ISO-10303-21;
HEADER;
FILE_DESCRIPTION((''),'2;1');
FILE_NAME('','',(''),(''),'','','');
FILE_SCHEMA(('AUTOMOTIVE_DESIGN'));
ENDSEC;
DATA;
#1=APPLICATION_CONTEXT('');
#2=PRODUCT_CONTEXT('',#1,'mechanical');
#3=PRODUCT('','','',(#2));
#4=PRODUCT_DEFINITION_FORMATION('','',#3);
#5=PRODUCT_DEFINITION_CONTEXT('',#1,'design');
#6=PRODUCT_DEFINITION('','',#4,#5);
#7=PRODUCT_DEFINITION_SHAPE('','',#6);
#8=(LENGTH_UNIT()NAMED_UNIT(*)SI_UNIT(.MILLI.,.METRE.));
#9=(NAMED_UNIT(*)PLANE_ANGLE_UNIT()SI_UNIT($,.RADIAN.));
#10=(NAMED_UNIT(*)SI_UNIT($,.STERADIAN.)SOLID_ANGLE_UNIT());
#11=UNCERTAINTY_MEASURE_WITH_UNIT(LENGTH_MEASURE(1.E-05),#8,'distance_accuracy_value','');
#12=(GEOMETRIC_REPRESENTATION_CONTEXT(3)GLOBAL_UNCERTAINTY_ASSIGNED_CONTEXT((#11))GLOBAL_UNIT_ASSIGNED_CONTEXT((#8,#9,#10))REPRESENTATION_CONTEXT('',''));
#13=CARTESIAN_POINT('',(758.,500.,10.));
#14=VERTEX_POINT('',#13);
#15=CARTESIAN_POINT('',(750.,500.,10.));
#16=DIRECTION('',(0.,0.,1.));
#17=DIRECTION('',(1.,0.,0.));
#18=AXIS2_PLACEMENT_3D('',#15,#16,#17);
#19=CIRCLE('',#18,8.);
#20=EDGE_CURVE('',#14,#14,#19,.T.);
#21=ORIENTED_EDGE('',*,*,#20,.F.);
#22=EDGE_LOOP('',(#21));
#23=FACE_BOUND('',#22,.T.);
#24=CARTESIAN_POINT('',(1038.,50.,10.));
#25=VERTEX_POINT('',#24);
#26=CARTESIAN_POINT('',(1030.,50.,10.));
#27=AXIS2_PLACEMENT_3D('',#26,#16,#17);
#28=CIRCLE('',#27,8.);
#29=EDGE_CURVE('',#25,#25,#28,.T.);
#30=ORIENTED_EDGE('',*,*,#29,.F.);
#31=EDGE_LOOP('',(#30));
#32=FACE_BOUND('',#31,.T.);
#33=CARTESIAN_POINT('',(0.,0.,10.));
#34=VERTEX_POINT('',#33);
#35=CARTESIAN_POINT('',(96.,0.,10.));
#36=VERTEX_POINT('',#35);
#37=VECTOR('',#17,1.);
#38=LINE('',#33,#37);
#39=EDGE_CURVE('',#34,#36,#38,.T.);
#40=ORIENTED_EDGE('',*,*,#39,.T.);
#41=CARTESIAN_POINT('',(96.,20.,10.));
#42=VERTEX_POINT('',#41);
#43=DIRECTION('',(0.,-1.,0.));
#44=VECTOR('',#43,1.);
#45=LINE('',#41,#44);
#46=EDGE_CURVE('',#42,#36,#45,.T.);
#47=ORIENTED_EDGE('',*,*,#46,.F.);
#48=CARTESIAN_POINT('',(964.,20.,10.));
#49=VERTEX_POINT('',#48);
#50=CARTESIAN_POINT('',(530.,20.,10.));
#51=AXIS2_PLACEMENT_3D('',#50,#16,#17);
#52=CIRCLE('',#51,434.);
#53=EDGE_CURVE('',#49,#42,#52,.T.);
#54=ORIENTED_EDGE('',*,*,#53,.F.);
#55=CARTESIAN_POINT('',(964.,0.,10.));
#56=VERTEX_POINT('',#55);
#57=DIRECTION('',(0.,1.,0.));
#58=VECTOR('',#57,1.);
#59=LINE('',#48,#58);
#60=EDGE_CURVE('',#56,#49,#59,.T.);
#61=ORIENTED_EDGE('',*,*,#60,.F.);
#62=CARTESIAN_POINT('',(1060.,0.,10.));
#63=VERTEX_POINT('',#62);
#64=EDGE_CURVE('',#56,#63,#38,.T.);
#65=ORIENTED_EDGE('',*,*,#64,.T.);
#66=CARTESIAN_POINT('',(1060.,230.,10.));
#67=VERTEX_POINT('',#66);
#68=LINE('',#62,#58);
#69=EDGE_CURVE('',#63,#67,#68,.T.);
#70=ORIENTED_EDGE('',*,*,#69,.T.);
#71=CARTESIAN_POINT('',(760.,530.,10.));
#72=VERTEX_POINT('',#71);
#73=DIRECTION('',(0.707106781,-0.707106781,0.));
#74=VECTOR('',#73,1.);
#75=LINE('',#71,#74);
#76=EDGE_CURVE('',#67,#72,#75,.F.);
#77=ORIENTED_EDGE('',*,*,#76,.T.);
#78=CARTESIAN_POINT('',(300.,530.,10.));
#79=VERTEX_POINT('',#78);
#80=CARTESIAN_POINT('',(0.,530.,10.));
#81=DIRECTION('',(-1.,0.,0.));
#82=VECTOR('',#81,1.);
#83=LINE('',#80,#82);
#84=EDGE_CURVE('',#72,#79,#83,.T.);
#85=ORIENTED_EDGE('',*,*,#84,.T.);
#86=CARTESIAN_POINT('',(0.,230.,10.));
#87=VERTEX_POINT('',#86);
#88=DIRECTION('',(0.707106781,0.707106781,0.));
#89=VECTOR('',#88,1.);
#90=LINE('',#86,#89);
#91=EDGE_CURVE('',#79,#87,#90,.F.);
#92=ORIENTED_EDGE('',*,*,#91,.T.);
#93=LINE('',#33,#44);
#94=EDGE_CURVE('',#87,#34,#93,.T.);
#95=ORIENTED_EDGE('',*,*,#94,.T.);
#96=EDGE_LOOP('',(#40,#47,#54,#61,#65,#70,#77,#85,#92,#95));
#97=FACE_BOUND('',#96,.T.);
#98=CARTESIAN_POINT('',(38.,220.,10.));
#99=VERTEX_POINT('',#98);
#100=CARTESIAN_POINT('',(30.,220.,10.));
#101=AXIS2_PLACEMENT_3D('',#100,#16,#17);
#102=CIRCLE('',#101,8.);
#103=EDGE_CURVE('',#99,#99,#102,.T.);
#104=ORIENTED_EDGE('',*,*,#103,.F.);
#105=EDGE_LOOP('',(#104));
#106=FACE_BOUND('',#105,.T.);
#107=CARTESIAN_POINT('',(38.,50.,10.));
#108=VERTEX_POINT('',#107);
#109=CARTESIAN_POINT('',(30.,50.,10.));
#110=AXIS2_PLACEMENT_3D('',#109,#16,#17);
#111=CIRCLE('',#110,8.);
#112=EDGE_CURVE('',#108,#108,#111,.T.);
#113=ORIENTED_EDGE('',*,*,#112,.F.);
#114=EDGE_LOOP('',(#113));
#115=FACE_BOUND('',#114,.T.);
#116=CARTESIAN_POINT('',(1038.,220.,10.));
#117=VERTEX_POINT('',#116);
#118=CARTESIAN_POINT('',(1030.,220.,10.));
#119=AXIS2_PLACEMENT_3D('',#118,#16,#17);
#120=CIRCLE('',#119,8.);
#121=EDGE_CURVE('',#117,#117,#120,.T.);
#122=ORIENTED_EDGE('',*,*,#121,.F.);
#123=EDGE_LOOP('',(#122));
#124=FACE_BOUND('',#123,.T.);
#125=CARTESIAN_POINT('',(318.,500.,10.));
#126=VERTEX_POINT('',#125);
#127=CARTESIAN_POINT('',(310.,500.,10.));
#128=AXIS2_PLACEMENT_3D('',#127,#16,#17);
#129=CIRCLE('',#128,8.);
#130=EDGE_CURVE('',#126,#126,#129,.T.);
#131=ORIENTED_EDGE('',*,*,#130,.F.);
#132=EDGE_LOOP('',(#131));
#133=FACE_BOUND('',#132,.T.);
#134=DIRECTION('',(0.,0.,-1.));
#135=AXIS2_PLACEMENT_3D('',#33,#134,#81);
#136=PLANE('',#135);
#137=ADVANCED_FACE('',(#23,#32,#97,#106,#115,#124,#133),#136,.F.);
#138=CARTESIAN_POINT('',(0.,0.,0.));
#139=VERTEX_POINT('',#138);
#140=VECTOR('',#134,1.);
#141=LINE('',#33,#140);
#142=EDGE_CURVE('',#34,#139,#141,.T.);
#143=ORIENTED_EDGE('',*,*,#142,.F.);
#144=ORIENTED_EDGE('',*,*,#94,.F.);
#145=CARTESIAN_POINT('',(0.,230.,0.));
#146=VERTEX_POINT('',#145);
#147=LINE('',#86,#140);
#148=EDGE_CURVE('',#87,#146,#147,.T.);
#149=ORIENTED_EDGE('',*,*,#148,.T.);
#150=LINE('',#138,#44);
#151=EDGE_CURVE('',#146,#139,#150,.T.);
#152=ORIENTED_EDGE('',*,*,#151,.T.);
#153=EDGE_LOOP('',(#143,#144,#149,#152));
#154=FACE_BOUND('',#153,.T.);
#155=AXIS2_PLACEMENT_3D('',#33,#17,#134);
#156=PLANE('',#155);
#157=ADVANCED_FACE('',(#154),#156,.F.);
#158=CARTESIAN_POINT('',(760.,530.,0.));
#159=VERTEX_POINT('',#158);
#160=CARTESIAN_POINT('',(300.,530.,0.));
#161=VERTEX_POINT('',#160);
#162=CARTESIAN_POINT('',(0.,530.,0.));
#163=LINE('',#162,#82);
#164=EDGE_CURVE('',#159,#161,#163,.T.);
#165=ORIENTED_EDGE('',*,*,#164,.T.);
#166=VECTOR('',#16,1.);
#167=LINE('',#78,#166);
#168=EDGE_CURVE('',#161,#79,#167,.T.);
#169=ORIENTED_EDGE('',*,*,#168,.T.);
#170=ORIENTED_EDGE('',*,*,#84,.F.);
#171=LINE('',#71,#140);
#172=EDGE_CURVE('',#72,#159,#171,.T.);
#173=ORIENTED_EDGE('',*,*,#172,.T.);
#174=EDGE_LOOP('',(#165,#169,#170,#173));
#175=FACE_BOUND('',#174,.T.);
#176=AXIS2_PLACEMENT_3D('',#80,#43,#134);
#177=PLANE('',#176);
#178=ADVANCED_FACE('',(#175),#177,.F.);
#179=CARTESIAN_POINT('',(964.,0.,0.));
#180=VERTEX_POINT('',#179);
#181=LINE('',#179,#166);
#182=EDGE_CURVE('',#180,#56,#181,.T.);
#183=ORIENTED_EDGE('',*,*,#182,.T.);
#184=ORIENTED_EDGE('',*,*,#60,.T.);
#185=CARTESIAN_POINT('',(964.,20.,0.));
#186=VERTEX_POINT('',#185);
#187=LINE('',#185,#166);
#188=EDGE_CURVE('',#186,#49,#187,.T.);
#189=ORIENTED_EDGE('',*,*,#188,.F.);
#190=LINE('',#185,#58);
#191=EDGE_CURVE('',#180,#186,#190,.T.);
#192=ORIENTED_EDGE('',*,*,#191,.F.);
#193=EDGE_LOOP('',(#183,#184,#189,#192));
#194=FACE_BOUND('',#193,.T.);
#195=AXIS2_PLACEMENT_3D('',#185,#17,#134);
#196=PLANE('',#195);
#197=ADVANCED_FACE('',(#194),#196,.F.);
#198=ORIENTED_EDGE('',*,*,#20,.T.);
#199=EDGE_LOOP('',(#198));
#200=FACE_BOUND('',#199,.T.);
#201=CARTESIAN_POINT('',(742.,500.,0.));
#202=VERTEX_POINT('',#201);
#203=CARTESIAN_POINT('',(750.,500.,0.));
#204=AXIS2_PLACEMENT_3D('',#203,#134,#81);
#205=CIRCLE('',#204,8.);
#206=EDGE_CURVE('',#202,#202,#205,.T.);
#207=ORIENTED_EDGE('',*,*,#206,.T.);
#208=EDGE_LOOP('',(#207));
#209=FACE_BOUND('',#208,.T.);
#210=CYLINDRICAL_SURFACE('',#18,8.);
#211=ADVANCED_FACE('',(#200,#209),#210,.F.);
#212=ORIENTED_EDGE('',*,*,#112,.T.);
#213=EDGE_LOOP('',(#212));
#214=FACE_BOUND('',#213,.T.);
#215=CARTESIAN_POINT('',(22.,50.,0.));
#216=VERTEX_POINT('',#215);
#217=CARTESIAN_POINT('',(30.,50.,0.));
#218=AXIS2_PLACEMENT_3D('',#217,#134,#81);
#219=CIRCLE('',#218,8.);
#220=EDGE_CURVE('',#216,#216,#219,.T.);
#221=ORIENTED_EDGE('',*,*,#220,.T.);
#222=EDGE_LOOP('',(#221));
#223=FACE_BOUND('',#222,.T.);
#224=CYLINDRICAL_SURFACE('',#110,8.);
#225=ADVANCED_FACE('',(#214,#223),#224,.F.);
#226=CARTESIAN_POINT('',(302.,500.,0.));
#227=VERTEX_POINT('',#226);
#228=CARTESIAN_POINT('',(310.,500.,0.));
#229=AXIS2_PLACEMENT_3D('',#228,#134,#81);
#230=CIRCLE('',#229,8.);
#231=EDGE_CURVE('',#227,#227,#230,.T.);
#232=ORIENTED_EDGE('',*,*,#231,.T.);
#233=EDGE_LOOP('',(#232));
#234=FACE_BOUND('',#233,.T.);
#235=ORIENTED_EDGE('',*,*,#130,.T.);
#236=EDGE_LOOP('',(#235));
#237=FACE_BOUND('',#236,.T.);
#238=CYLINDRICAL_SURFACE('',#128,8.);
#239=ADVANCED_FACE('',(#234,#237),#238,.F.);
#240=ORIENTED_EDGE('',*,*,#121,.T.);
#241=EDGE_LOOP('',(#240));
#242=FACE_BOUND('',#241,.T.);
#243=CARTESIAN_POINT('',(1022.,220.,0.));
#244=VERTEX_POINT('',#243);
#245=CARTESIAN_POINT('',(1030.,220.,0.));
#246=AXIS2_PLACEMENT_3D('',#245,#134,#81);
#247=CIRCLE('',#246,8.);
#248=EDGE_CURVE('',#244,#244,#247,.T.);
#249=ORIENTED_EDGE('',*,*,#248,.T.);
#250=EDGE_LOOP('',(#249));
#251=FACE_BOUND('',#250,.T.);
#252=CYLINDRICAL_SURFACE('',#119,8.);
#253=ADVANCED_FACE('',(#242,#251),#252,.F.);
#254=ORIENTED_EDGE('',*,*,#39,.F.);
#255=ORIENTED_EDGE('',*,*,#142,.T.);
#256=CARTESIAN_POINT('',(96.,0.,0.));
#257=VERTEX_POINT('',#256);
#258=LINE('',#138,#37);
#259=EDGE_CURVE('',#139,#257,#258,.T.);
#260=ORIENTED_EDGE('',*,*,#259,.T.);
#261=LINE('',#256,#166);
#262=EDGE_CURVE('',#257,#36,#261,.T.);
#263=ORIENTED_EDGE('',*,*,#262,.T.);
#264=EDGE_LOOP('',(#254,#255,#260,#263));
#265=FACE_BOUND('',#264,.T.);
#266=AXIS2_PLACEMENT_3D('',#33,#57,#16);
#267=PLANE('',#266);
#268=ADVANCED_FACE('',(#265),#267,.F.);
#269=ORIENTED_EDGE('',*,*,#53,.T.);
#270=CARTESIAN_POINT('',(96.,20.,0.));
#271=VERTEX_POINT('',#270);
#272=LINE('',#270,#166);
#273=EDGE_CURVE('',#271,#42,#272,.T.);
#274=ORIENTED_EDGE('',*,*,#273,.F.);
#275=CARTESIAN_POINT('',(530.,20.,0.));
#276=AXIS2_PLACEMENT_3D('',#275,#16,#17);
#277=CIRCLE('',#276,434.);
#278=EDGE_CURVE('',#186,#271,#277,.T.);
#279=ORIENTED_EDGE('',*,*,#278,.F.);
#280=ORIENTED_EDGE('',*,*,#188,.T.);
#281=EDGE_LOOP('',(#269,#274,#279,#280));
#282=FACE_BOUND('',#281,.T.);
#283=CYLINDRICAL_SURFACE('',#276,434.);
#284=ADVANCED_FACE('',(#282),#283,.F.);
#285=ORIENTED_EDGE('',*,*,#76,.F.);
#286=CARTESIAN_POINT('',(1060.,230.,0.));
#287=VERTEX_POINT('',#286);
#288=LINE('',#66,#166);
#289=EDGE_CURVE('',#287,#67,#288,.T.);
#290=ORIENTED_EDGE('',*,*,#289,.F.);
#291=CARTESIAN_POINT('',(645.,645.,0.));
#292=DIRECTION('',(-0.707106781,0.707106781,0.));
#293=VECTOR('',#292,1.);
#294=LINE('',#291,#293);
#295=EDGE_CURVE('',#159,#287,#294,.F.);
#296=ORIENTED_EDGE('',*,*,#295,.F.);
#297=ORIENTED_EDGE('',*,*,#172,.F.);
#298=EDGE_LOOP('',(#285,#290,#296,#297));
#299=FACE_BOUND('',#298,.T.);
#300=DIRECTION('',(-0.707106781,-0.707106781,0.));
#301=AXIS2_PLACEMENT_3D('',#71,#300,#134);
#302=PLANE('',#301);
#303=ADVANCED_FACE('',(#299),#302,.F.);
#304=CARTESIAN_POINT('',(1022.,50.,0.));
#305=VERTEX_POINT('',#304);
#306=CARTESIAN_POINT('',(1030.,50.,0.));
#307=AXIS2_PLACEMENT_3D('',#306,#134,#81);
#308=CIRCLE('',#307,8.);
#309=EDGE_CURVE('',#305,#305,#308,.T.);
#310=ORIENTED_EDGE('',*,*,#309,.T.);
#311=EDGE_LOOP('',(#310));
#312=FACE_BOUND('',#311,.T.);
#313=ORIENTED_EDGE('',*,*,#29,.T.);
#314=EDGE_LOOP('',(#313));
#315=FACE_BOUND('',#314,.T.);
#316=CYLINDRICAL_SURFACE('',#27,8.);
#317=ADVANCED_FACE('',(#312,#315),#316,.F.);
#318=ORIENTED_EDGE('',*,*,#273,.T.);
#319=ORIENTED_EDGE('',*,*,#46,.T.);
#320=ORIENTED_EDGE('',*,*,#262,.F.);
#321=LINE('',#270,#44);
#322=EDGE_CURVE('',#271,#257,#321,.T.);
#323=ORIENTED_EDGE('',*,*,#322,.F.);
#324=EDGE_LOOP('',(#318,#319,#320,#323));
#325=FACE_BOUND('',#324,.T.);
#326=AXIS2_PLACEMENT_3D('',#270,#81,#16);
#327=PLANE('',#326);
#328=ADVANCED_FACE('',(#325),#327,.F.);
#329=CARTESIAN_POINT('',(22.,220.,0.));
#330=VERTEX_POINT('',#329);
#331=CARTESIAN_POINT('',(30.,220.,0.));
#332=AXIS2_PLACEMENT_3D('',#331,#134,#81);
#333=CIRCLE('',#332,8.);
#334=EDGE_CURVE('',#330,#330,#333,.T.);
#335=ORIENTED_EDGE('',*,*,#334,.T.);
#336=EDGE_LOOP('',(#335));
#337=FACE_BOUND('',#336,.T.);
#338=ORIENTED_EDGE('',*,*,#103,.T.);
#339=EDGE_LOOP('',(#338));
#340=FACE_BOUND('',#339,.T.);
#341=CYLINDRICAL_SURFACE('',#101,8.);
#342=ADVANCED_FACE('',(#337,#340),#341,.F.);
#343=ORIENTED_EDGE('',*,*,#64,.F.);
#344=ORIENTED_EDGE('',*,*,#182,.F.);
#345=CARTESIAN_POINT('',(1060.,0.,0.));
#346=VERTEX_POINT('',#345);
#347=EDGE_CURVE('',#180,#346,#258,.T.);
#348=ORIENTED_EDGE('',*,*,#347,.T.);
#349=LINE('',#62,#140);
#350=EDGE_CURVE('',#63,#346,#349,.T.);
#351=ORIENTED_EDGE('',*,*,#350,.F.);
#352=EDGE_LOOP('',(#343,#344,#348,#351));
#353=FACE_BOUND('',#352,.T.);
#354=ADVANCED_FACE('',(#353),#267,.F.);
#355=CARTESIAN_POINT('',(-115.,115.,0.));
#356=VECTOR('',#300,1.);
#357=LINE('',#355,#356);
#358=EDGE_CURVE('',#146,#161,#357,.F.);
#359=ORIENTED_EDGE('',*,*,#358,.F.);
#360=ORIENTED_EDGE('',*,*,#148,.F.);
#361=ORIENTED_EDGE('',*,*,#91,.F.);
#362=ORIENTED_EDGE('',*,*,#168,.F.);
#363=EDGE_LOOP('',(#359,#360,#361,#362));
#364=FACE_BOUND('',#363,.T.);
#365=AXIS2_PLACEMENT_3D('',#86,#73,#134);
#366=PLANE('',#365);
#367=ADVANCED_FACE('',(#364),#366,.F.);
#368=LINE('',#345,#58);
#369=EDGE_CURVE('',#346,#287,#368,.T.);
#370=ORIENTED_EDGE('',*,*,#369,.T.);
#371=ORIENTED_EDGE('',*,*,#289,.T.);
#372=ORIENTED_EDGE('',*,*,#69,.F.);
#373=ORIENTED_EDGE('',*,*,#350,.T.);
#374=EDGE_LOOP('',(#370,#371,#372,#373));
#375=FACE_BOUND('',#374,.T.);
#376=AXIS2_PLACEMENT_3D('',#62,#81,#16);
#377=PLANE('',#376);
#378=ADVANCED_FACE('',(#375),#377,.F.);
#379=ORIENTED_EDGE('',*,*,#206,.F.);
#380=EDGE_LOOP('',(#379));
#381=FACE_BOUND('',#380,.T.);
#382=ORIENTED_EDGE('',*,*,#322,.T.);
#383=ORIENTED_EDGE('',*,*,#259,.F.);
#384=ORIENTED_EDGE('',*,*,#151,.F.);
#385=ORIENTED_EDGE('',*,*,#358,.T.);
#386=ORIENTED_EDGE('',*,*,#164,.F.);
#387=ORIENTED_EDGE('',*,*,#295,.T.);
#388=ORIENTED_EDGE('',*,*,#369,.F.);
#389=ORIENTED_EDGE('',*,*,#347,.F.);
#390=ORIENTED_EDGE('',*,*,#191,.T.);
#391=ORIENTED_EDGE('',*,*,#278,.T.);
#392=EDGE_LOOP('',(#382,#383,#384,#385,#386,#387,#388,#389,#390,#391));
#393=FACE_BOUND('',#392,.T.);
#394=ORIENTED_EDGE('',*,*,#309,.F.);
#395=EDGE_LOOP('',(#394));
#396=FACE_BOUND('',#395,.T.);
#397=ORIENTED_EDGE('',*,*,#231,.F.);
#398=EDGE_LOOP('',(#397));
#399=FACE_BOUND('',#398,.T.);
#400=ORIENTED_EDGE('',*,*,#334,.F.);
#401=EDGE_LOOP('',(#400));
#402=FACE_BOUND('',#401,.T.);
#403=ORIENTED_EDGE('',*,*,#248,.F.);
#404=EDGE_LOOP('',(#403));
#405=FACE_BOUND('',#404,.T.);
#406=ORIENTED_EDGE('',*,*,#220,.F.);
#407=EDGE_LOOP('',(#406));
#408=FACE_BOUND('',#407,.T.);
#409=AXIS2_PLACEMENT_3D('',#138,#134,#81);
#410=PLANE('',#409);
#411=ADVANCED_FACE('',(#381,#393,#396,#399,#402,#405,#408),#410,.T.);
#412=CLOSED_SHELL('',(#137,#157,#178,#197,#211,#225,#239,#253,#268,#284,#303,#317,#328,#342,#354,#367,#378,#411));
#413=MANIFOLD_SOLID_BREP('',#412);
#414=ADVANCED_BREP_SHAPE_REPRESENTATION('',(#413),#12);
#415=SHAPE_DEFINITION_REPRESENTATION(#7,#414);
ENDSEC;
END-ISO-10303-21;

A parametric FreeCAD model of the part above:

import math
import FreeCAD as App
import Part
import Sketcher

V = App.Vector
Q = App.Units.Quantity


def edges_at(feature, points):
    """Names of the edges that pass closest to the given points."""
    edges = feature.Shape.Edges
    near = lambda p: min(range(len(edges)), key=lambda i: edges[i].distToShape(Part.Vertex(*p))[0])
    return sorted({f"Edge{near(p) + 1}" for p in points})

doc = App.newDocument("Part")
body = doc.addObject("PartDesign::Body", "Body")

sketch1 = body.newObject("Sketcher::SketchObject", "Sketch")
sketch1.AttachmentSupport = (doc.getObject("XY_Plane"), [""])
sketch1.MapMode = "FlatFace"
sketch1.addGeometry([
    Part.LineSegment(V(0, 530, 0), V(0, 0, 0)),
    Part.LineSegment(V(0, 0, 0), V(1060, 0, 0)),
    Part.LineSegment(V(1060, 0, 0), V(1060, 530, 0)),
    Part.LineSegment(V(1060, 530, 0), V(0, 530, 0)),
], False)
sketch1.addConstraint([
    Sketcher.Constraint("Coincident", 0, 2, 1, 1),
    Sketcher.Constraint("Coincident", 1, 2, 2, 1),
    Sketcher.Constraint("Coincident", 2, 2, 3, 1),
    Sketcher.Constraint("Coincident", 3, 2, 0, 1),
    Sketcher.Constraint("Vertical", 0),
    Sketcher.Constraint("Horizontal", 1),
    Sketcher.Constraint("Vertical", 2),
    Sketcher.Constraint("Horizontal", 3),
    Sketcher.Constraint("Coincident", 0, 2, -1, 1),
    Sketcher.Constraint("DistanceX", 1, 1, 1, 2, Q("1060 mm")),
    Sketcher.Constraint("DistanceY", 0, 2, 0, 1, Q("530 mm")),
])
pad1 = body.newObject("PartDesign::Pad", "Pad")
pad1.Profile = sketch1
pad1.Length = 10

sketch2 = body.newObject("Sketcher::SketchObject", "Sketch001")
sketch2.AttachmentSupport = (doc.getObject("XY_Plane"), [""])
sketch2.MapMode = "FlatFace"
sketch2.AttachmentOffset = App.Placement(V(0, 0, 10), App.Rotation())
sketch2.addGeometry([
    Part.LineSegment(V(96, 20, 0), V(96, 0, 0)),
    Part.LineSegment(V(96, 0, 0), V(964, 0, 0)),
    Part.LineSegment(V(964, 0, 0), V(964, 20, 0)),
    Part.ArcOfCircle(Part.Circle(V(530, 20, 0), V(0, 0, 1), 434), math.radians(0), math.radians(180)),
], False)
sketch2.addConstraint([
    Sketcher.Constraint("Coincident", 0, 2, 1, 1),
    Sketcher.Constraint("Coincident", 1, 2, 2, 1),
    Sketcher.Constraint("Tangent", 2, 2, 3, 1),
    Sketcher.Constraint("Tangent", 3, 2, 0, 1),
    Sketcher.Constraint("Vertical", 0),
    Sketcher.Constraint("Horizontal", 1),
    Sketcher.Constraint("Vertical", 2),
    Sketcher.Constraint("PointOnObject", 0, 2, -1),
    Sketcher.Constraint("Radius", 3, Q("434 mm")),
    Sketcher.Constraint("DistanceY", 0, 2, 0, 1, Q("20 mm")),
    Sketcher.Constraint("DistanceX", -1, 1, 3, 3, Q("530 mm")),
])
pocket1 = body.newObject("PartDesign::Pocket", "Pocket")
pocket1.Profile = sketch2
pocket1.Length = 10
doc.recompute()

chamfer = body.newObject("PartDesign::Chamfer", "Chamfer")
chamfer.Base = (pocket1, edges_at(pocket1, [(0, 530, 5), (1060, 530, 5)]))
chamfer.Size = 300

sketch3 = body.newObject("Sketcher::SketchObject", "Sketch002")
sketch3.AttachmentSupport = (doc.getObject("XY_Plane"), [""])
sketch3.MapMode = "FlatFace"
sketch3.AttachmentOffset = App.Placement(V(0, 0, 10), App.Rotation())
sketch3.addGeometry([
    Part.Circle(V(30, 220, 0), V(0, 0, 1), 8),
    Part.Circle(V(30, 50, 0), V(0, 0, 1), 8),
    Part.Circle(V(1030, 220, 0), V(0, 0, 1), 8),
    Part.Circle(V(1030, 50, 0), V(0, 0, 1), 8),
    Part.Circle(V(310, 500, 0), V(0, 0, 1), 8),
    Part.Circle(V(750, 500, 0), V(0, 0, 1), 8),
], False)
sketch3.addConstraint([
    Sketcher.Constraint("Equal", 0, 1),
    Sketcher.Constraint("Equal", 1, 2),
    Sketcher.Constraint("Equal", 2, 3),
    Sketcher.Constraint("Equal", 3, 4),
    Sketcher.Constraint("Equal", 4, 5),
    Sketcher.Constraint("Horizontal", 0, 3, 2, 3),
    Sketcher.Constraint("Horizontal", 1, 3, 3, 3),
    Sketcher.Constraint("Horizontal", 4, 3, 5, 3),
    Sketcher.Constraint("Vertical", 0, 3, 1, 3),
    Sketcher.Constraint("Vertical", 2, 3, 3, 3),
    Sketcher.Constraint("Diameter", 0, Q("16 mm")),
    Sketcher.Constraint("DistanceX", -1, 1, 0, 3, Q("30 mm")),
    Sketcher.Constraint("DistanceY", -1, 1, 0, 3, Q("220 mm")),
    Sketcher.Constraint("DistanceY", -1, 1, 1, 3, Q("50 mm")),
    Sketcher.Constraint("DistanceX", -1, 1, 2, 3, Q("1030 mm")),
    Sketcher.Constraint("DistanceX", -1, 1, 4, 3, Q("310 mm")),
    Sketcher.Constraint("DistanceY", -1, 1, 4, 3, Q("500 mm")),
    Sketcher.Constraint("DistanceX", -1, 1, 5, 3, Q("750 mm")),
])
doc.recompute()
hole = body.newObject("PartDesign::Hole", "Hole")
hole.Profile = sketch3
hole.ThreadType = "None"
hole.Diameter = 16
hole.DepthType = "Dimension"
hole.Depth = 42
hole.DrillPoint = "Angled"
hole.DrillPointAngle = 118

doc.recompute()
